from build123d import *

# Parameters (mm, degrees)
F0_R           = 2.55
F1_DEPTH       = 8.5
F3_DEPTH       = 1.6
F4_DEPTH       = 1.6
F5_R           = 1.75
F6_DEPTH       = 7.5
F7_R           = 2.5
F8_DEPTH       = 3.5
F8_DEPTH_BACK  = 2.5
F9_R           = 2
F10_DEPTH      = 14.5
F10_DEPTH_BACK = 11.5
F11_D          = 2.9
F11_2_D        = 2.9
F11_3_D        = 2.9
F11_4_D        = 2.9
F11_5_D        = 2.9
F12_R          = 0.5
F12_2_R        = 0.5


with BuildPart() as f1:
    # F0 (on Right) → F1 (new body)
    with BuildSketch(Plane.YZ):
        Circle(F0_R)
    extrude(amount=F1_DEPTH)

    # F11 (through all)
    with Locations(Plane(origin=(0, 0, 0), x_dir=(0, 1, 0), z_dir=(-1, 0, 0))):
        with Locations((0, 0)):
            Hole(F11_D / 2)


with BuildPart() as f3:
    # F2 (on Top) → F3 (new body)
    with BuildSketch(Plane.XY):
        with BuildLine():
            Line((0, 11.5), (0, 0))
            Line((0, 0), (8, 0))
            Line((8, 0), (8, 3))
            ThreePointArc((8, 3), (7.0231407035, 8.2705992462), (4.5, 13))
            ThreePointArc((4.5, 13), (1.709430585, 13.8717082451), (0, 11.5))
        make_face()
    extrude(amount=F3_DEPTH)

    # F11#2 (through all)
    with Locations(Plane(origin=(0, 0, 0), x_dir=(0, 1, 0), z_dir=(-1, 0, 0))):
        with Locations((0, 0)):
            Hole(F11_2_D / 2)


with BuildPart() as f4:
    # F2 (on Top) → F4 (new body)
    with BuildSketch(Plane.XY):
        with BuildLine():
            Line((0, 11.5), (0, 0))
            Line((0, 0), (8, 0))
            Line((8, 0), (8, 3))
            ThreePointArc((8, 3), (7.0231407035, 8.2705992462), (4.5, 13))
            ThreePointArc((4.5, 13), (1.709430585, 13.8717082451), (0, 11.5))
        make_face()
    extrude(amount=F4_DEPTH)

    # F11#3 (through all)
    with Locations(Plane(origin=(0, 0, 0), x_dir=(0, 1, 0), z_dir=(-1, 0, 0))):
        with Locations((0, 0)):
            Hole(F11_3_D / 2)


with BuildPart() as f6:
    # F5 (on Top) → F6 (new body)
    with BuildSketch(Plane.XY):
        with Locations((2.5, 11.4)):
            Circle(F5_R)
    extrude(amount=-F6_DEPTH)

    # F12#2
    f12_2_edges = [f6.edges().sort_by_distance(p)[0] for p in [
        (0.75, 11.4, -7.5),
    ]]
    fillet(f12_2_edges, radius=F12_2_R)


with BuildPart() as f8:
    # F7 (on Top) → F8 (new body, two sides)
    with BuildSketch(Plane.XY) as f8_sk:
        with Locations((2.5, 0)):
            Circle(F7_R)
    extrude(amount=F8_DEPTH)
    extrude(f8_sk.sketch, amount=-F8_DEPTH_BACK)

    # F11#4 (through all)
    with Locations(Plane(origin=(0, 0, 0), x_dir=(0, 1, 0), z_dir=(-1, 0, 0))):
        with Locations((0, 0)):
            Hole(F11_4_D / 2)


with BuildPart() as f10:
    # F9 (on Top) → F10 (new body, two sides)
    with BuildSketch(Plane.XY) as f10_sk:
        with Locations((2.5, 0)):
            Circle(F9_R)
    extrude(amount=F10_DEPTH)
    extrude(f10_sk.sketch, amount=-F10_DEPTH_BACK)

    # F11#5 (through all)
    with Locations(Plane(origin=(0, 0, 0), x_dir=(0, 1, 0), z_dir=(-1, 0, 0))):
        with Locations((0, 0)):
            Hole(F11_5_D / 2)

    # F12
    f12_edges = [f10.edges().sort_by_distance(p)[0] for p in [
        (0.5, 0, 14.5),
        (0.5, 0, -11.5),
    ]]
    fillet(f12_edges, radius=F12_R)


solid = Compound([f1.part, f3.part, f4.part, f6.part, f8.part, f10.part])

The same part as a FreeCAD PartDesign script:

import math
import FreeCAD as App
import Part
import Sketcher
Q = App.Units.Quantity


def edges_at(feature, points):
    """Names of the edges that pass closest to the given points."""
    edges = feature.Shape.Edges
    near = lambda p: min(range(len(edges)), key=lambda i: edges[i].distToShape(Part.Vertex(*p))[0])
    return sorted({f"Edge{near(p) + 1}" for p in points})

doc = App.newDocument("Part")
params = doc.addObject("Spreadsheet::Sheet", "Params")
for row, (alias, value) in enumerate([
    ("sketch1_diameter", "5.1 mm"),
    ("pad1_length", "8.5 mm"),
    ("sketch2_diameter", "2.9 mm"),
    ("hole_diameter", "2.9 mm"),
    ("sketch3_radius", "2.5 mm"),
    ("sketch3_width", "8 mm"),
    ("sketch3_height", "3 mm"),
    ("sketch3_height2", "11.5 mm"),
    ("pad2_length", "1.6 mm"),
    ("sketch4_diameter", "2.9 mm"),
    ("hole2_diameter", "2.9 mm"),
    ("sketch5_radius", "2.5 mm"),
    ("sketch5_width", "8 mm"),
    ("sketch5_height", "3 mm"),
    ("sketch5_height2", "11.5 mm"),
    ("pad3_length", "1.6 mm"),
    ("sketch6_diameter", "2.9 mm"),
    ("hole3_diameter", "2.9 mm"),
    ("sketch7_diameter", "3.5 mm"),
    ("pad4_length", "7.5 mm"),
    ("fillet_radius", "0.5 mm"),
    ("sketch8_diameter", "5 mm"),
    ("pad5_length", "3.5 mm"),
    ("pad5_length2", "2.5 mm"),
    ("sketch9_diameter", "2.9 mm"),
    ("hole4_diameter", "2.9 mm"),
    ("sketch10_diameter", "4 mm"),
    ("pad6_length", "14.5 mm"),
    ("pad6_length2", "11.5 mm"),
    ("sketch11_diameter", "2.9 mm"),
    ("hole5_diameter", "2.9 mm"),
    ("fillet2_radius", "0.5 mm"),
], start=1):
    params.set(f"A{row}", alias)
    params.set(f"B{row}", "=" + value)
    params.setAlias(f"B{row}", alias)

body = doc.addObject("PartDesign::Body", "Body")

# Sketch on YZ plane
sketch1 = doc.addObject("Sketcher::SketchObject", "Sketch")
body.addObject(sketch1)
sketch1.AttachmentSupport = (doc.YZ_Plane, [""])
sketch1.MapMode = "FlatFace"
sketch1.addGeometry(Part.Circle(App.Vector(0, 0, 0), App.Vector(0, 0, 1), 2.55), False)
sketch1.addConstraint(Sketcher.Constraint("Coincident", 0, 3, -1, 1))
sketch1.addConstraint(Sketcher.Constraint("Diameter", 0, Q("5.1 mm")))
sketch1.setExpression("Constraints[1]", "Params.sketch1_diameter")
pad1 = doc.addObject("PartDesign::Pad", "Pad")
body.addObject(pad1)
pad1.Profile = sketch1
pad1.setExpression("Length", "Params.pad1_length")

# Sketch on YZ plane
sketch2 = doc.addObject("Sketcher::SketchObject", "Sketch001")
body.addObject(sketch2)
sketch2.AttachmentSupport = (doc.YZ_Plane, [""])
sketch2.MapMode = "FlatFace"
sketch2.addGeometry(Part.Circle(App.Vector(0, 0, 0), App.Vector(0, 0, 1), 1.45), False)
sketch2.addConstraint(Sketcher.Constraint("Coincident", 0, 3, -1, 1))
sketch2.addConstraint(Sketcher.Constraint("Diameter", 0, Q("2.9 mm")))
sketch2.setExpression("Constraints[1]", "Params.sketch2_diameter")
doc.recompute()
hole = doc.addObject("PartDesign::Hole", "Hole")
body.addObject(hole)
hole.Profile = sketch2
hole.ThreadType = "None"
hole.setExpression("Diameter", "Params.hole_diameter")
hole.DepthType = "ThroughAll"
hole.Reversed = True
body2 = doc.addObject("PartDesign::Body", "Body001")

# Sketch on XY plane
sketch3 = doc.addObject("Sketcher::SketchObject", "Sketch002")
body2.addObject(sketch3)
sketch3.AttachmentSupport = (doc.getObject("XY_Plane001"), [""])
sketch3.MapMode = "FlatFace"
sketch3.addGeometry(Part.LineSegment(App.Vector(0, 11.5, 0), App.Vector(0, 0, 0)), False)
sketch3.addGeometry(Part.LineSegment(App.Vector(0, 0, 0), App.Vector(8, 0, 0)), False)
sketch3.addGeometry(Part.LineSegment(App.Vector(8, 0, 0), App.Vector(8, 3, 0)), False)
sketch3.addGeometry(Part.ArcOfCircle(Part.Circle(App.Vector(-9.53125, 2.476562, 0), App.Vector(0, 0, 1), 17.539062), math.radians(1.710195), math.radians(36.869898)), False)
sketch3.addGeometry(Part.ArcOfCircle(Part.Circle(App.Vector(2.5, 11.5, 0), App.Vector(0, 0, 1), 2.5), math.radians(36.869898), math.radians(180)), False)
sketch3.addConstraint(Sketcher.Constraint("Coincident", 0, 2, 1, 1))
sketch3.addConstraint(Sketcher.Constraint("Coincident", 1, 2, 2, 1))
sketch3.addConstraint(Sketcher.Constraint("Coincident", 2, 2, 3, 1))
sketch3.addConstraint(Sketcher.Constraint("Tangent", 3, 2, 4, 1))
sketch3.addConstraint(Sketcher.Constraint("Tangent", 4, 2, 0, 1))
sketch3.addConstraint(Sketcher.Constraint("Vertical", 0))
sketch3.addConstraint(Sketcher.Constraint("Horizontal", 1))
sketch3.addConstraint(Sketcher.Constraint("Vertical", 2))
sketch3.addConstraint(Sketcher.Constraint("Coincident", 0, 2, -1, 1))
sketch3.addConstraint(Sketcher.Constraint("Radius", 4, Q("2.5 mm")))
sketch3.addConstraint(Sketcher.Constraint("DistanceX", 1, 1, 1, 2, Q("8 mm")))
sketch3.addConstraint(Sketcher.Constraint("DistanceY", 2, 1, 2, 2, Q("3 mm")))
sketch3.addConstraint(Sketcher.Constraint("DistanceY", 0, 2, 0, 1, Q("11.5 mm")))
sketch3.addConstraint(Sketcher.Constraint("DistanceY", -1, 1, 3, 2, Q("13 mm")))
sketch3.setExpression("Constraints[9]", "Params.sketch3_radius")
sketch3.setExpression("Constraints[10]", "Params.sketch3_width")
sketch3.setExpression("Constraints[11]", "Params.sketch3_height")
sketch3.setExpression("Constraints[12]", "Params.sketch3_height2")
pad2 = doc.addObject("PartDesign::Pad", "Pad001")
body2.addObject(pad2)
pad2.Profile = sketch3
pad2.setExpression("Length", "Params.pad2_length")

# Sketch on YZ plane
sketch4 = doc.addObject("Sketcher::SketchObject", "Sketch003")
body2.addObject(sketch4)
sketch4.AttachmentSupport = (doc.getObject("YZ_Plane001"), [""])
sketch4.MapMode = "FlatFace"
sketch4.addGeometry(Part.Circle(App.Vector(0, 0, 0), App.Vector(0, 0, 1), 1.45), False)
sketch4.addConstraint(Sketcher.Constraint("Coincident", 0, 3, -1, 1))
sketch4.addConstraint(Sketcher.Constraint("Diameter", 0, Q("2.9 mm")))
sketch4.setExpression("Constraints[1]", "Params.sketch4_diameter")
doc.recompute()
hole2 = doc.addObject("PartDesign::Hole", "Hole001")
body2.addObject(hole2)
hole2.Profile = sketch4
hole2.ThreadType = "None"
hole2.setExpression("Diameter", "Params.hole2_diameter")
hole2.DepthType = "ThroughAll"
hole2.Reversed = True
body3 = doc.addObject("PartDesign::Body", "Body002")

# Sketch on XY plane
sketch5 = doc.addObject("Sketcher::SketchObject", "Sketch004")
body3.addObject(sketch5)
sketch5.AttachmentSupport = (doc.getObject("XY_Plane002"), [""])
sketch5.MapMode = "FlatFace"
sketch5.addGeometry(Part.LineSegment(App.Vector(0, 11.5, 0), App.Vector(0, 0, 0)), False)
sketch5.addGeometry(Part.LineSegment(App.Vector(0, 0, 0), App.Vector(8, 0, 0)), False)
sketch5.addGeometry(Part.LineSegment(App.Vector(8, 0, 0), App.Vector(8, 3, 0)), False)
sketch5.addGeometry(Part.ArcOfCircle(Part.Circle(App.Vector(-9.53125, 2.476562, 0), App.Vector(0, 0, 1), 17.539062), math.radians(1.710195), math.radians(36.869898)), False)
sketch5.addGeometry(Part.ArcOfCircle(Part.Circle(App.Vector(2.5, 11.5, 0), App.Vector(0, 0, 1), 2.5), math.radians(36.869898), math.radians(180)), False)
sketch5.addConstraint(Sketcher.Constraint("Coincident", 0, 2, 1, 1))
sketch5.addConstraint(Sketcher.Constraint("Coincident", 1, 2, 2, 1))
sketch5.addConstraint(Sketcher.Constraint("Coincident", 2, 2, 3, 1))
sketch5.addConstraint(Sketcher.Constraint("Tangent", 3, 2, 4, 1))
sketch5.addConstraint(Sketcher.Constraint("Tangent", 4, 2, 0, 1))
sketch5.addConstraint(Sketcher.Constraint("Vertical", 0))
sketch5.addConstraint(Sketcher.Constraint("Horizontal", 1))
sketch5.addConstraint(Sketcher.Constraint("Vertical", 2))
sketch5.addConstraint(Sketcher.Constraint("Coincident", 0, 2, -1, 1))
sketch5.addConstraint(Sketcher.Constraint("Radius", 4, Q("2.5 mm")))
sketch5.addConstraint(Sketcher.Constraint("DistanceX", 1, 1, 1, 2, Q("8 mm")))
sketch5.addConstraint(Sketcher.Constraint("DistanceY", 2, 1, 2, 2, Q("3 mm")))
sketch5.addConstraint(Sketcher.Constraint("DistanceY", 0, 2, 0, 1, Q("11.5 mm")))
sketch5.addConstraint(Sketcher.Constraint("DistanceY", -1, 1, 3, 2, Q("13 mm")))
sketch5.setExpression("Constraints[9]", "Params.sketch5_radius")
sketch5.setExpression("Constraints[10]", "Params.sketch5_width")
sketch5.setExpression("Constraints[11]", "Params.sketch5_height")
sketch5.setExpression("Constraints[12]", "Params.sketch5_height2")
pad3 = doc.addObject("PartDesign::Pad", "Pad002")
body3.addObject(pad3)
pad3.Profile = sketch5
pad3.setExpression("Length", "Params.pad3_length")

# Sketch on YZ plane
sketch6 = doc.addObject("Sketcher::SketchObject", "Sketch005")
body3.addObject(sketch6)
sketch6.AttachmentSupport = (doc.getObject("YZ_Plane002"), [""])
sketch6.MapMode = "FlatFace"
sketch6.addGeometry(Part.Circle(App.Vector(0, 0, 0), App.Vector(0, 0, 1), 1.45), False)
sketch6.addConstraint(Sketcher.Constraint("Coincident", 0, 3, -1, 1))
sketch6.addConstraint(Sketcher.Constraint("Diameter", 0, Q("2.9 mm")))
sketch6.setExpression("Constraints[1]", "Params.sketch6_diameter")
doc.recompute()
hole3 = doc.addObject("PartDesign::Hole", "Hole002")
body3.addObject(hole3)
hole3.Profile = sketch6
hole3.ThreadType = "None"
hole3.setExpression("Diameter", "Params.hole3_diameter")
hole3.DepthType = "ThroughAll"
hole3.Reversed = True
body4 = doc.addObject("PartDesign::Body", "Body003")

# Sketch on XY plane
sketch7 = doc.addObject("Sketcher::SketchObject", "Sketch006")
body4.addObject(sketch7)
sketch7.AttachmentSupport = (doc.getObject("XY_Plane003"), [""])
sketch7.MapMode = "FlatFace"
sketch7.addGeometry(Part.Circle(App.Vector(2.5, 11.4, 0), App.Vector(0, 0, 1), 1.75), False)
sketch7.addConstraint(Sketcher.Constraint("Diameter", 0, Q("3.5 mm")))
sketch7.addConstraint(Sketcher.Constraint("DistanceX", -1, 1, 0, 3, Q("2.5 mm")))
sketch7.addConstraint(Sketcher.Constraint("DistanceY", -1, 1, 0, 3, Q("11.4 mm")))
sketch7.setExpression("Constraints[0]", "Params.sketch7_diameter")
pad4 = doc.addObject("PartDesign::Pad", "Pad003")
body4.addObject(pad4)
pad4.Profile = sketch7
pad4.setExpression("Length", "Params.pad4_length")
pad4.Reversed = True
doc.recompute()

fillet = doc.addObject("PartDesign::Fillet", "Fillet")
body4.addObject(fillet)
fillet.Base = (pad4, edges_at(pad4, [(0.75, 11.4, -7.5)]))
fillet.setExpression("Radius", "Params.fillet_radius")
body5 = doc.addObject("PartDesign::Body", "Body004")

# Sketch on XY plane
sketch8 = doc.addObject("Sketcher::SketchObject", "Sketch007")
body5.addObject(sketch8)
sketch8.AttachmentSupport = (doc.getObject("XY_Plane004"), [""])
sketch8.MapMode = "FlatFace"
sketch8.addGeometry(Part.Circle(App.Vector(2.5, 0, 0), App.Vector(0, 0, 1), 2.5), False)
sketch8.addConstraint(Sketcher.Constraint("PointOnObject", 0, 3, -1))
sketch8.addConstraint(Sketcher.Constraint("Diameter", 0, Q("5 mm")))
sketch8.addConstraint(Sketcher.Constraint("DistanceX", -1, 1, 0, 3, Q("2.5 mm")))
sketch8.setExpression("Constraints[1]", "Params.sketch8_diameter")
pad5 = doc.addObject("PartDesign::Pad", "Pad004")
body5.addObject(pad5)
pad5.Profile = sketch8
pad5.Type = "TwoLengths"
pad5.setExpression("Length", "Params.pad5_length")
pad5.setExpression("Length2", "Params.pad5_length2")

# Sketch on YZ plane
sketch9 = doc.addObject("Sketcher::SketchObject", "Sketch008")
body5.addObject(sketch9)
sketch9.AttachmentSupport = (doc.getObject("YZ_Plane004"), [""])
sketch9.MapMode = "FlatFace"
sketch9.addGeometry(Part.Circle(App.Vector(0, 0, 0), App.Vector(0, 0, 1), 1.45), False)
sketch9.addConstraint(Sketcher.Constraint("Coincident", 0, 3, -1, 1))
sketch9.addConstraint(Sketcher.Constraint("Diameter", 0, Q("2.9 mm")))
sketch9.setExpression("Constraints[1]", "Params.sketch9_diameter")
doc.recompute()
hole4 = doc.addObject("PartDesign::Hole", "Hole003")
body5.addObject(hole4)
hole4.Profile = sketch9
hole4.ThreadType = "None"
hole4.setExpression("Diameter", "Params.hole4_diameter")
hole4.DepthType = "ThroughAll"
hole4.Reversed = True
body6 = doc.addObject("PartDesign::Body", "Body005")

# Sketch on XY plane
sketch10 = doc.addObject("Sketcher::SketchObject", "Sketch009")
body6.addObject(sketch10)
sketch10.AttachmentSupport = (doc.getObject("XY_Plane005"), [""])
sketch10.MapMode = "FlatFace"
sketch10.addGeometry(Part.Circle(App.Vector(2.5, 0, 0), App.Vector(0, 0, 1), 2), False)
sketch10.addConstraint(Sketcher.Constraint("PointOnObject", 0, 3, -1))
sketch10.addConstraint(Sketcher.Constraint("Diameter", 0, Q("4 mm")))
sketch10.addConstraint(Sketcher.Constraint("DistanceX", -1, 1, 0, 3, Q("2.5 mm")))
sketch10.setExpression("Constraints[1]", "Params.sketch10_diameter")
pad6 = doc.addObject("PartDesign::Pad", "Pad005")
body6.addObject(pad6)
pad6.Profile = sketch10
pad6.Type = "TwoLengths"
pad6.setExpression("Length", "Params.pad6_length")
pad6.setExpression("Length2", "Params.pad6_length2")

# Sketch on YZ plane
sketch11 = doc.addObject("Sketcher::SketchObject", "Sketch010")
body6.addObject(sketch11)
sketch11.AttachmentSupport = (doc.getObject("YZ_Plane005"), [""])
sketch11.MapMode = "FlatFace"
sketch11.addGeometry(Part.Circle(App.Vector(0, 0, 0), App.Vector(0, 0, 1), 1.45), False)
sketch11.addConstraint(Sketcher.Constraint("Coincident", 0, 3, -1, 1))
sketch11.addConstraint(Sketcher.Constraint("Diameter", 0, Q("2.9 mm")))
sketch11.setExpression("Constraints[1]", "Params.sketch11_diameter")
doc.recompute()
hole5 = doc.addObject("PartDesign::Hole", "Hole004")
body6.addObject(hole5)
hole5.Profile = sketch11
hole5.ThreadType = "None"
hole5.setExpression("Diameter", "Params.hole5_diameter")
hole5.DepthType = "ThroughAll"
hole5.Reversed = True
doc.recompute()

fillet2 = doc.addObject("PartDesign::Fillet", "Fillet001")
body6.addObject(fillet2)
fillet2.Base = (hole5, edges_at(hole5, [(0.5, 0, 14.5), (0.5, 0, -11.5)]))
fillet2.setExpression("Radius", "Params.fillet2_radius")

doc.recompute()
